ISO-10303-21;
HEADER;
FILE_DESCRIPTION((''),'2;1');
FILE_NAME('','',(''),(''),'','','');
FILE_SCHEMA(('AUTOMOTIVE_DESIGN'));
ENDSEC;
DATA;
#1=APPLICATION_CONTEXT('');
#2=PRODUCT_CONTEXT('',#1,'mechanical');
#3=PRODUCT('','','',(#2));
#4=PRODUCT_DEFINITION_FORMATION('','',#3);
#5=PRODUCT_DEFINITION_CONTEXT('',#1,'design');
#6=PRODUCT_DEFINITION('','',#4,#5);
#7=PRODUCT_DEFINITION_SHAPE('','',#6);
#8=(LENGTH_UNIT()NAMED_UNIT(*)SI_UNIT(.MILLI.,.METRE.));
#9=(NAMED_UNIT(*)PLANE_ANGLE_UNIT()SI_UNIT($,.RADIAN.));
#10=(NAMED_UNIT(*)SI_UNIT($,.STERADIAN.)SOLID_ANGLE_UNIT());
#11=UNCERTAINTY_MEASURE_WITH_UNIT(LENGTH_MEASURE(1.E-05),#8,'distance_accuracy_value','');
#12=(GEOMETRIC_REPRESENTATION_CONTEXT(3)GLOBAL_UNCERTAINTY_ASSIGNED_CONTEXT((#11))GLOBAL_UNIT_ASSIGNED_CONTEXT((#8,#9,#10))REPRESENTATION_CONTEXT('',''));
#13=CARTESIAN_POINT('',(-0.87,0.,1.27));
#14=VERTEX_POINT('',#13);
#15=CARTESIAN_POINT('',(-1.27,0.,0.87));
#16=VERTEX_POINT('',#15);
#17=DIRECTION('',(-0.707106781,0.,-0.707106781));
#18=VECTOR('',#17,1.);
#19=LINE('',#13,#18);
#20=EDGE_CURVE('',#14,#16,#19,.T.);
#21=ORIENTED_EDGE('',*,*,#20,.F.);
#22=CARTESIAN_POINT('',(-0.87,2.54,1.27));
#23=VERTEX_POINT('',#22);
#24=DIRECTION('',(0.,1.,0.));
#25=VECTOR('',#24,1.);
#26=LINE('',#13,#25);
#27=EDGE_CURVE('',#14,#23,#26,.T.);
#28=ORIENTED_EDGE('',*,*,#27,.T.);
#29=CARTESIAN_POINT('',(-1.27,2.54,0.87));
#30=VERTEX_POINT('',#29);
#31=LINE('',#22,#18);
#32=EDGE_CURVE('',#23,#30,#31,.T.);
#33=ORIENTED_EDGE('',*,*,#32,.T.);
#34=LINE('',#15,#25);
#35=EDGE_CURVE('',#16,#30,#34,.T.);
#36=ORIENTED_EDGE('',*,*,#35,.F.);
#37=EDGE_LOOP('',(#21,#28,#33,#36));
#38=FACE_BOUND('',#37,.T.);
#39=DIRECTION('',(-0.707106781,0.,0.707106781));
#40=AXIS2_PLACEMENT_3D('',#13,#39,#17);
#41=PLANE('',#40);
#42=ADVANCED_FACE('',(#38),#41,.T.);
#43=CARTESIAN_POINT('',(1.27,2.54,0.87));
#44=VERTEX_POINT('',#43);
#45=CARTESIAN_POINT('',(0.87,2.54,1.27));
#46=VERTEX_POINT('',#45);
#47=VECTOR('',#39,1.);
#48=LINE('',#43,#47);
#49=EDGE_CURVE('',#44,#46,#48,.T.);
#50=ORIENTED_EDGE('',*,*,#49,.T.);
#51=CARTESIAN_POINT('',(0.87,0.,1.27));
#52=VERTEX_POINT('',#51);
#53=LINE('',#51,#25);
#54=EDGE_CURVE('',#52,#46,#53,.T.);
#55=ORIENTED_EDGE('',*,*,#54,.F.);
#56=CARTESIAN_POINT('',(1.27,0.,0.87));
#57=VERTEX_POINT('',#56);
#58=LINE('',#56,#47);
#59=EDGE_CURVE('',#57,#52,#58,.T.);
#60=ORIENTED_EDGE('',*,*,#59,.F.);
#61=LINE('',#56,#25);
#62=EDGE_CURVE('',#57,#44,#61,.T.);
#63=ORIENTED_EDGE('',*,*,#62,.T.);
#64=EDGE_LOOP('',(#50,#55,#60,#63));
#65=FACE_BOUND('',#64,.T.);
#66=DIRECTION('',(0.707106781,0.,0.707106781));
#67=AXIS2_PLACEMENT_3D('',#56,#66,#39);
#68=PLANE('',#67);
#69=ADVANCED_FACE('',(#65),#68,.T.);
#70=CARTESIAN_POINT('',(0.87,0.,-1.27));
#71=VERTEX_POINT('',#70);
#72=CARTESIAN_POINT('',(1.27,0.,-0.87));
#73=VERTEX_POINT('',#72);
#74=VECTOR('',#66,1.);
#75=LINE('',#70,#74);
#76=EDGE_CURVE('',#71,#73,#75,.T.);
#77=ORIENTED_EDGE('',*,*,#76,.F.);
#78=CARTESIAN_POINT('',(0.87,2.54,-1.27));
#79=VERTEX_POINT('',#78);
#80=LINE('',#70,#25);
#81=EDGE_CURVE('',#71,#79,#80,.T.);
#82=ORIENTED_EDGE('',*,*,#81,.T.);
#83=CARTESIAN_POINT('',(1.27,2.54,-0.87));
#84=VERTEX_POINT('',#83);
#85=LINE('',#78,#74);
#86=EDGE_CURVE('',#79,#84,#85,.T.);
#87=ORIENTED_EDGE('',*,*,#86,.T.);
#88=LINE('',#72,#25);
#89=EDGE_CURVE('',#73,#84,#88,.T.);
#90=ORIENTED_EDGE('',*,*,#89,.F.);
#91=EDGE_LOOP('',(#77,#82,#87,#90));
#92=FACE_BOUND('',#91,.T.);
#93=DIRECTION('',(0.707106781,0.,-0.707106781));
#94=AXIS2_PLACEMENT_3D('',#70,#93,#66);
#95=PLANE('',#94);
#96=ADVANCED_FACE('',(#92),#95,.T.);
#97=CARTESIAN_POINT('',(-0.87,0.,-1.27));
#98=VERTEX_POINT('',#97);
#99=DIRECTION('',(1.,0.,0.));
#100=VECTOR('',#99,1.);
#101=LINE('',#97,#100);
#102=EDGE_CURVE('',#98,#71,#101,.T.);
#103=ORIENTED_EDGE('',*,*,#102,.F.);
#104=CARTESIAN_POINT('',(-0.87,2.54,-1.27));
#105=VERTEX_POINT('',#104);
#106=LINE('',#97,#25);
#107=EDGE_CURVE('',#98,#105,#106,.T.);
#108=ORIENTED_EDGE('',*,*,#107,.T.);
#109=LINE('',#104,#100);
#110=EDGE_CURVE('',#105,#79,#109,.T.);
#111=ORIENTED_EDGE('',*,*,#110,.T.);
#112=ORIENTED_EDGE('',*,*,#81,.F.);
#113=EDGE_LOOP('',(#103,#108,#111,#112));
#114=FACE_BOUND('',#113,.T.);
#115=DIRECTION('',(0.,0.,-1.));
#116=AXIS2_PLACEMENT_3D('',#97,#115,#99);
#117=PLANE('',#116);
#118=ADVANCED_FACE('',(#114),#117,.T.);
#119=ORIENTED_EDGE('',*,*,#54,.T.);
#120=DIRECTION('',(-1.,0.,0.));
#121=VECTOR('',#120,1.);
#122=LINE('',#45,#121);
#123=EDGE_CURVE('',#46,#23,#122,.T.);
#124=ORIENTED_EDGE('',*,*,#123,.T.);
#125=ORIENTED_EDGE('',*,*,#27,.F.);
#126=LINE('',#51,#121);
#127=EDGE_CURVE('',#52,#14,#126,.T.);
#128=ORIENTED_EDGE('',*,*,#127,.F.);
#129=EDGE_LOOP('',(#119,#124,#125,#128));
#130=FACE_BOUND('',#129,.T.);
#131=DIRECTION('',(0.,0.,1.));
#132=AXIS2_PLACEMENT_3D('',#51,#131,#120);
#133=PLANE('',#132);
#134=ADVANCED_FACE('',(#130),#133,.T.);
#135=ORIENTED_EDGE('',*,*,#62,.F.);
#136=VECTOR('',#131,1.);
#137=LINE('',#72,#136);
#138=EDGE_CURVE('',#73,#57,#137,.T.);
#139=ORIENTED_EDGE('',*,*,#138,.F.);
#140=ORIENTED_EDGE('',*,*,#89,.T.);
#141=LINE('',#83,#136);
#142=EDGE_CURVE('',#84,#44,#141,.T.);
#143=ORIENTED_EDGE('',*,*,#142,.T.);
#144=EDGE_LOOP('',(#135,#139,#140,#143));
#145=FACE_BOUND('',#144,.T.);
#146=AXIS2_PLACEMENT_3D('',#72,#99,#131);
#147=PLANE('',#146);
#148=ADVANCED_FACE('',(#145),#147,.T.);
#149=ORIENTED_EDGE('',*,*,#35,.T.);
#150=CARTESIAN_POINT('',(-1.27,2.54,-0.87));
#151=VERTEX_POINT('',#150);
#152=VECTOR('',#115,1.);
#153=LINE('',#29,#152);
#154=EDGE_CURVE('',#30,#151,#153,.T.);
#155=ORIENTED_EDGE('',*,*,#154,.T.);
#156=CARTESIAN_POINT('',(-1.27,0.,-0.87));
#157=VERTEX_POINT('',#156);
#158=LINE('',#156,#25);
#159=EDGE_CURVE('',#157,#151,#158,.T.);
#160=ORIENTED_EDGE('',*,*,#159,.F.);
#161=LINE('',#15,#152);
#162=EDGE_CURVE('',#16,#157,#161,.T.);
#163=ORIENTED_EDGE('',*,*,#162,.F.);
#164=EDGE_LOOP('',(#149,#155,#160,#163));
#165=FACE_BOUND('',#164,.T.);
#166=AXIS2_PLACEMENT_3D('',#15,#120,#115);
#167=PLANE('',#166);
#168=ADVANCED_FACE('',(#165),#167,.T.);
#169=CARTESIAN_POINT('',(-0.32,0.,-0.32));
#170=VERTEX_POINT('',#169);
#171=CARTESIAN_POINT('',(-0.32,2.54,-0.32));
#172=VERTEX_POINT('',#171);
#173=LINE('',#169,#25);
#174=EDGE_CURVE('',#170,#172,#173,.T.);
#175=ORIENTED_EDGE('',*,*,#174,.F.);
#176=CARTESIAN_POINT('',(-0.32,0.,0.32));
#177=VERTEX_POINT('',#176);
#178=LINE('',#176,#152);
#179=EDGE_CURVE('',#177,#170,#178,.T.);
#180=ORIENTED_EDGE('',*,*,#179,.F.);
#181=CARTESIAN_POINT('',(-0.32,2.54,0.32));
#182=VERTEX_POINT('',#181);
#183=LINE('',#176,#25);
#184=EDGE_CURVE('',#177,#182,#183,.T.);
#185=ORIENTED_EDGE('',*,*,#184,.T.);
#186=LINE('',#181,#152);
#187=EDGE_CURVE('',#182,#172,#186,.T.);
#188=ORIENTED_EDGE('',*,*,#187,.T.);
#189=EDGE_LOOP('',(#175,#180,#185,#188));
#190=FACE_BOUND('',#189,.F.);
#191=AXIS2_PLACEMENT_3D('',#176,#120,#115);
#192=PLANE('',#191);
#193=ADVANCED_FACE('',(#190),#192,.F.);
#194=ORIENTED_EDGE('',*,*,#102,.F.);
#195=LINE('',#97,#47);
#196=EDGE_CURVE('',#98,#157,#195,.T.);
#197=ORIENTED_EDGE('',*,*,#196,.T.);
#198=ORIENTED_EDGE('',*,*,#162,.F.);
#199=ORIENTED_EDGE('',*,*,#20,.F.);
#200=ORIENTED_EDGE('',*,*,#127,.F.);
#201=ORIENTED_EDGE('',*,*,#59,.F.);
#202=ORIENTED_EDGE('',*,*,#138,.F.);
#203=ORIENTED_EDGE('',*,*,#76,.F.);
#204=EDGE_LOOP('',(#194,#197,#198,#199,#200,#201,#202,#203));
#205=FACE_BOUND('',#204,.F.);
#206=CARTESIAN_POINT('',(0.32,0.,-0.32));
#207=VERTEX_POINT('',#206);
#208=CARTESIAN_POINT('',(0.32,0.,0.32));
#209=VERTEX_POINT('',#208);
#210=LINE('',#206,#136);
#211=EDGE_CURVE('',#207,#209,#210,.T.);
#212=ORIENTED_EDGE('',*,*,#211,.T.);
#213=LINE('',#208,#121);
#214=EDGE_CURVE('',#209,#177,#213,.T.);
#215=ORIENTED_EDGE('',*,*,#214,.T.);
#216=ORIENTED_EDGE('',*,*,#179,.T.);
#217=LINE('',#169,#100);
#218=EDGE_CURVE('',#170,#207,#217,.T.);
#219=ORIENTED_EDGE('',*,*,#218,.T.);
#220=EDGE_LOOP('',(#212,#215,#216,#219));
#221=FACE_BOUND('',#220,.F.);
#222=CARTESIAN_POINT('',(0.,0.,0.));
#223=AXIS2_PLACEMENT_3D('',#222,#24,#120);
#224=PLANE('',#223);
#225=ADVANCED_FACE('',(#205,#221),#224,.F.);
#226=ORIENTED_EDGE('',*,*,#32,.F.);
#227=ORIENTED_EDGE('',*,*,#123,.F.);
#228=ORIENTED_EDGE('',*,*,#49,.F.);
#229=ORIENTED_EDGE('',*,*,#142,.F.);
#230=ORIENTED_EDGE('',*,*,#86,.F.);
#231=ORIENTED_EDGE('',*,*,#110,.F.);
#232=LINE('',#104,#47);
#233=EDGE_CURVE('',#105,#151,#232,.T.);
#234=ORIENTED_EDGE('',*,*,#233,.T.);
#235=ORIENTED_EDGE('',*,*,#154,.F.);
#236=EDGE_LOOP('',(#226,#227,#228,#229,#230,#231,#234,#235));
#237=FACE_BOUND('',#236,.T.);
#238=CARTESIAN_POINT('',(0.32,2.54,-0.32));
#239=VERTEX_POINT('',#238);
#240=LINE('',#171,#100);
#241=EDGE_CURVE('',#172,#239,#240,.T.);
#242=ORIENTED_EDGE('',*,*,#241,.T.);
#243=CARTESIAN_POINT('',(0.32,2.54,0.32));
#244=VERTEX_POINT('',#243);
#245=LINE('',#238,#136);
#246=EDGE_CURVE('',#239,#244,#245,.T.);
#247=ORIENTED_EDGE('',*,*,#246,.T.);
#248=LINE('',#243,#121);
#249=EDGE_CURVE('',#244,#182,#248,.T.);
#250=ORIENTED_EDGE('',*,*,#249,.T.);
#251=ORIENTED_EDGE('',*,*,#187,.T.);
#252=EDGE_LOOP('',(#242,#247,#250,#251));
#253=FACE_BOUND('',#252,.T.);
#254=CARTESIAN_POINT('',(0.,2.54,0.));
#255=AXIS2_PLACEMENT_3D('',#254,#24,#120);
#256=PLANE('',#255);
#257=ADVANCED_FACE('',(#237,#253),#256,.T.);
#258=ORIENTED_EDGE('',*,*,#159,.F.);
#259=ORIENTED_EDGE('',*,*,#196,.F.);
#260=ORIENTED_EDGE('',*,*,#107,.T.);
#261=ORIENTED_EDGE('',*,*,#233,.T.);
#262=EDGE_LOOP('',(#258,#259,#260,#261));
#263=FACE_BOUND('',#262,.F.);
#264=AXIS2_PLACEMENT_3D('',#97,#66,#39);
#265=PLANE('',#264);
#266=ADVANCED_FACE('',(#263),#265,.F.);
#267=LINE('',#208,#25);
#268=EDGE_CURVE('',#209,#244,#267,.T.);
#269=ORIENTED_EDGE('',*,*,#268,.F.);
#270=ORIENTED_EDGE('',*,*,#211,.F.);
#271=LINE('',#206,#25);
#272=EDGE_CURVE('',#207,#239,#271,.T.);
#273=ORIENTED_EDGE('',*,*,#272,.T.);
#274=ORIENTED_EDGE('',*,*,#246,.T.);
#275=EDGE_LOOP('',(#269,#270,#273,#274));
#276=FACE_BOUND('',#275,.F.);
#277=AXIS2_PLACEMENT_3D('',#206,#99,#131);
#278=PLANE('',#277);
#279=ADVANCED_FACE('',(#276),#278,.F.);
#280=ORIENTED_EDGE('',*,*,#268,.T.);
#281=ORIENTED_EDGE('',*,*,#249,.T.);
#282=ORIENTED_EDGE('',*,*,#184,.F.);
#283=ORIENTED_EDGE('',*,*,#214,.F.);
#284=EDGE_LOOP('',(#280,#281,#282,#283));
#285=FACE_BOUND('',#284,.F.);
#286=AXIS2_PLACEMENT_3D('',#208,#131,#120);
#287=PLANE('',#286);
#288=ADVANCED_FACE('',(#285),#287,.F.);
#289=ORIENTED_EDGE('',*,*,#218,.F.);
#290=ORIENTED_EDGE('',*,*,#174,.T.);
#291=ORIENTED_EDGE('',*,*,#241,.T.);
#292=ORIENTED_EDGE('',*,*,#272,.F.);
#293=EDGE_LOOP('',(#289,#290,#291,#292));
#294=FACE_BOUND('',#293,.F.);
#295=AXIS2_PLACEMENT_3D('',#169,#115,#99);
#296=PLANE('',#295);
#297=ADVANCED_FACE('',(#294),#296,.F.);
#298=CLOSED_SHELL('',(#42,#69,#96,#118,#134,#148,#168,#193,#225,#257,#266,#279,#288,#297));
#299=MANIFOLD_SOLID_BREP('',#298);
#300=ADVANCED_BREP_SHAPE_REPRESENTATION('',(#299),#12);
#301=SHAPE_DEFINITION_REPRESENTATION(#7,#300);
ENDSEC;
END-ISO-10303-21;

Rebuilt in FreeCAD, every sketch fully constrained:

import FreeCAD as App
import Part
import Sketcher
from FreeCAD import Vector
Q = App.Units.Quantity

doc = App.newDocument("Part")
body = doc.addObject("PartDesign::Body", "Body")

# Sketch on XZ plane
sketch1 = doc.addObject("Sketcher::SketchObject", "Sketch")
body.addObject(sketch1)
sketch1.AttachmentSupport = (doc.XZ_Plane, [""])
sketch1.MapMode = "FlatFace"
sketch1.addGeometry([
    Part.LineSegment(Vector(0.9, -1.3, 0), Vector(-0.9, -1.3, 0)),  # 0
    Part.LineSegment(Vector(-0.9, -1.3, 0), Vector(-1.3, -0.9, 0)),  # 1
    Part.LineSegment(Vector(-1.3, -0.9, 0), Vector(-1.3, 0.9, 0)),  # 2
    Part.LineSegment(Vector(-1.3, 0.9, 0), Vector(-0.9, 1.3, 0)),  # 3
    Part.LineSegment(Vector(-0.9, 1.3, 0), Vector(0.9, 1.3, 0)),  # 4
    Part.LineSegment(Vector(0.9, 1.3, 0), Vector(1.3, 0.9, 0)),  # 5
    Part.LineSegment(Vector(1.3, 0.9, 0), Vector(1.3, -0.9, 0)),  # 6
    Part.LineSegment(Vector(1.3, -0.9, 0), Vector(0.9, -1.3, 0)),  # 7
    Part.LineSegment(Vector(-0.3, 0.3, 0), Vector(-0.3, -0.3, 0)),  # 8
    Part.LineSegment(Vector(-0.3, -0.3, 0), Vector(0.3, -0.3, 0)),  # 9
    Part.LineSegment(Vector(0.3, -0.3, 0), Vector(0.3, 0.3, 0)),  # 10
    Part.LineSegment(Vector(0.3, 0.3, 0), Vector(-0.3, 0.3, 0)),  # 11
], False)
sketch1.addConstraint([
    Sketcher.Constraint("Coincident", 0, 2, 1, 1),
    Sketcher.Constraint("Coincident", 1, 2, 2, 1),
    Sketcher.Constraint("Coincident", 2, 2, 3, 1),
    Sketcher.Constraint("Coincident", 3, 2, 4, 1),
    Sketcher.Constraint("Coincident", 4, 2, 5, 1),
    Sketcher.Constraint("Coincident", 5, 2, 6, 1),
    Sketcher.Constraint("Coincident", 6, 2, 7, 1),
    Sketcher.Constraint("Coincident", 7, 2, 0, 1),
    Sketcher.Constraint("Coincident", 8, 2, 9, 1),
    Sketcher.Constraint("Coincident", 9, 2, 10, 1),
    Sketcher.Constraint("Coincident", 10, 2, 11, 1),
    Sketcher.Constraint("Coincident", 11, 2, 8, 1),
    Sketcher.Constraint("Horizontal", 0),
    Sketcher.Constraint("Vertical", 2),
    Sketcher.Constraint("Horizontal", 4),
    Sketcher.Constraint("Vertical", 6),
    Sketcher.Constraint("Vertical", 8),
    Sketcher.Constraint("Horizontal", 9),
    Sketcher.Constraint("Vertical", 10),
    Sketcher.Constraint("Horizontal", 11),
    Sketcher.Constraint("Symmetric", 0, 2, 4, 2, -1, 1),
    Sketcher.Constraint("Symmetric", 1, 2, 5, 2, -1, 1),
    Sketcher.Constraint("Symmetric", 8, 2, 10, 2, -1, 1),
    Sketcher.Constraint("Perpendicular", 1, 3),
    Sketcher.Constraint("Perpendicular", 5, 7),
    Sketcher.Constraint("Horizontal", 2, 2, 5, 2),
    Sketcher.Constraint("Horizontal", 1, 2, 6, 2),
    Sketcher.Constraint("Vertical", 0, 2, 3, 2),
    Sketcher.Constraint("Equal", 4, 2),
    Sketcher.Constraint("Equal", 11, 8),
    Sketcher.Constraint("DistanceY", 0, 2, 3, 2, Q("0.1 in")),
    Sketcher.Constraint("DistanceX", 9, 1, 9, 2, Q("0.0252 in")),
    Sketcher.Constraint("DistanceX", 1, 2, 0, 2, Q("0.4 mm")),
])
pad1 = doc.addObject("PartDesign::Pad", "Pad")
body.addObject(pad1)
pad1.Profile = sketch1
pad1.Length = Q("0.1 in")
pad1.Reversed = True

doc.recompute()
